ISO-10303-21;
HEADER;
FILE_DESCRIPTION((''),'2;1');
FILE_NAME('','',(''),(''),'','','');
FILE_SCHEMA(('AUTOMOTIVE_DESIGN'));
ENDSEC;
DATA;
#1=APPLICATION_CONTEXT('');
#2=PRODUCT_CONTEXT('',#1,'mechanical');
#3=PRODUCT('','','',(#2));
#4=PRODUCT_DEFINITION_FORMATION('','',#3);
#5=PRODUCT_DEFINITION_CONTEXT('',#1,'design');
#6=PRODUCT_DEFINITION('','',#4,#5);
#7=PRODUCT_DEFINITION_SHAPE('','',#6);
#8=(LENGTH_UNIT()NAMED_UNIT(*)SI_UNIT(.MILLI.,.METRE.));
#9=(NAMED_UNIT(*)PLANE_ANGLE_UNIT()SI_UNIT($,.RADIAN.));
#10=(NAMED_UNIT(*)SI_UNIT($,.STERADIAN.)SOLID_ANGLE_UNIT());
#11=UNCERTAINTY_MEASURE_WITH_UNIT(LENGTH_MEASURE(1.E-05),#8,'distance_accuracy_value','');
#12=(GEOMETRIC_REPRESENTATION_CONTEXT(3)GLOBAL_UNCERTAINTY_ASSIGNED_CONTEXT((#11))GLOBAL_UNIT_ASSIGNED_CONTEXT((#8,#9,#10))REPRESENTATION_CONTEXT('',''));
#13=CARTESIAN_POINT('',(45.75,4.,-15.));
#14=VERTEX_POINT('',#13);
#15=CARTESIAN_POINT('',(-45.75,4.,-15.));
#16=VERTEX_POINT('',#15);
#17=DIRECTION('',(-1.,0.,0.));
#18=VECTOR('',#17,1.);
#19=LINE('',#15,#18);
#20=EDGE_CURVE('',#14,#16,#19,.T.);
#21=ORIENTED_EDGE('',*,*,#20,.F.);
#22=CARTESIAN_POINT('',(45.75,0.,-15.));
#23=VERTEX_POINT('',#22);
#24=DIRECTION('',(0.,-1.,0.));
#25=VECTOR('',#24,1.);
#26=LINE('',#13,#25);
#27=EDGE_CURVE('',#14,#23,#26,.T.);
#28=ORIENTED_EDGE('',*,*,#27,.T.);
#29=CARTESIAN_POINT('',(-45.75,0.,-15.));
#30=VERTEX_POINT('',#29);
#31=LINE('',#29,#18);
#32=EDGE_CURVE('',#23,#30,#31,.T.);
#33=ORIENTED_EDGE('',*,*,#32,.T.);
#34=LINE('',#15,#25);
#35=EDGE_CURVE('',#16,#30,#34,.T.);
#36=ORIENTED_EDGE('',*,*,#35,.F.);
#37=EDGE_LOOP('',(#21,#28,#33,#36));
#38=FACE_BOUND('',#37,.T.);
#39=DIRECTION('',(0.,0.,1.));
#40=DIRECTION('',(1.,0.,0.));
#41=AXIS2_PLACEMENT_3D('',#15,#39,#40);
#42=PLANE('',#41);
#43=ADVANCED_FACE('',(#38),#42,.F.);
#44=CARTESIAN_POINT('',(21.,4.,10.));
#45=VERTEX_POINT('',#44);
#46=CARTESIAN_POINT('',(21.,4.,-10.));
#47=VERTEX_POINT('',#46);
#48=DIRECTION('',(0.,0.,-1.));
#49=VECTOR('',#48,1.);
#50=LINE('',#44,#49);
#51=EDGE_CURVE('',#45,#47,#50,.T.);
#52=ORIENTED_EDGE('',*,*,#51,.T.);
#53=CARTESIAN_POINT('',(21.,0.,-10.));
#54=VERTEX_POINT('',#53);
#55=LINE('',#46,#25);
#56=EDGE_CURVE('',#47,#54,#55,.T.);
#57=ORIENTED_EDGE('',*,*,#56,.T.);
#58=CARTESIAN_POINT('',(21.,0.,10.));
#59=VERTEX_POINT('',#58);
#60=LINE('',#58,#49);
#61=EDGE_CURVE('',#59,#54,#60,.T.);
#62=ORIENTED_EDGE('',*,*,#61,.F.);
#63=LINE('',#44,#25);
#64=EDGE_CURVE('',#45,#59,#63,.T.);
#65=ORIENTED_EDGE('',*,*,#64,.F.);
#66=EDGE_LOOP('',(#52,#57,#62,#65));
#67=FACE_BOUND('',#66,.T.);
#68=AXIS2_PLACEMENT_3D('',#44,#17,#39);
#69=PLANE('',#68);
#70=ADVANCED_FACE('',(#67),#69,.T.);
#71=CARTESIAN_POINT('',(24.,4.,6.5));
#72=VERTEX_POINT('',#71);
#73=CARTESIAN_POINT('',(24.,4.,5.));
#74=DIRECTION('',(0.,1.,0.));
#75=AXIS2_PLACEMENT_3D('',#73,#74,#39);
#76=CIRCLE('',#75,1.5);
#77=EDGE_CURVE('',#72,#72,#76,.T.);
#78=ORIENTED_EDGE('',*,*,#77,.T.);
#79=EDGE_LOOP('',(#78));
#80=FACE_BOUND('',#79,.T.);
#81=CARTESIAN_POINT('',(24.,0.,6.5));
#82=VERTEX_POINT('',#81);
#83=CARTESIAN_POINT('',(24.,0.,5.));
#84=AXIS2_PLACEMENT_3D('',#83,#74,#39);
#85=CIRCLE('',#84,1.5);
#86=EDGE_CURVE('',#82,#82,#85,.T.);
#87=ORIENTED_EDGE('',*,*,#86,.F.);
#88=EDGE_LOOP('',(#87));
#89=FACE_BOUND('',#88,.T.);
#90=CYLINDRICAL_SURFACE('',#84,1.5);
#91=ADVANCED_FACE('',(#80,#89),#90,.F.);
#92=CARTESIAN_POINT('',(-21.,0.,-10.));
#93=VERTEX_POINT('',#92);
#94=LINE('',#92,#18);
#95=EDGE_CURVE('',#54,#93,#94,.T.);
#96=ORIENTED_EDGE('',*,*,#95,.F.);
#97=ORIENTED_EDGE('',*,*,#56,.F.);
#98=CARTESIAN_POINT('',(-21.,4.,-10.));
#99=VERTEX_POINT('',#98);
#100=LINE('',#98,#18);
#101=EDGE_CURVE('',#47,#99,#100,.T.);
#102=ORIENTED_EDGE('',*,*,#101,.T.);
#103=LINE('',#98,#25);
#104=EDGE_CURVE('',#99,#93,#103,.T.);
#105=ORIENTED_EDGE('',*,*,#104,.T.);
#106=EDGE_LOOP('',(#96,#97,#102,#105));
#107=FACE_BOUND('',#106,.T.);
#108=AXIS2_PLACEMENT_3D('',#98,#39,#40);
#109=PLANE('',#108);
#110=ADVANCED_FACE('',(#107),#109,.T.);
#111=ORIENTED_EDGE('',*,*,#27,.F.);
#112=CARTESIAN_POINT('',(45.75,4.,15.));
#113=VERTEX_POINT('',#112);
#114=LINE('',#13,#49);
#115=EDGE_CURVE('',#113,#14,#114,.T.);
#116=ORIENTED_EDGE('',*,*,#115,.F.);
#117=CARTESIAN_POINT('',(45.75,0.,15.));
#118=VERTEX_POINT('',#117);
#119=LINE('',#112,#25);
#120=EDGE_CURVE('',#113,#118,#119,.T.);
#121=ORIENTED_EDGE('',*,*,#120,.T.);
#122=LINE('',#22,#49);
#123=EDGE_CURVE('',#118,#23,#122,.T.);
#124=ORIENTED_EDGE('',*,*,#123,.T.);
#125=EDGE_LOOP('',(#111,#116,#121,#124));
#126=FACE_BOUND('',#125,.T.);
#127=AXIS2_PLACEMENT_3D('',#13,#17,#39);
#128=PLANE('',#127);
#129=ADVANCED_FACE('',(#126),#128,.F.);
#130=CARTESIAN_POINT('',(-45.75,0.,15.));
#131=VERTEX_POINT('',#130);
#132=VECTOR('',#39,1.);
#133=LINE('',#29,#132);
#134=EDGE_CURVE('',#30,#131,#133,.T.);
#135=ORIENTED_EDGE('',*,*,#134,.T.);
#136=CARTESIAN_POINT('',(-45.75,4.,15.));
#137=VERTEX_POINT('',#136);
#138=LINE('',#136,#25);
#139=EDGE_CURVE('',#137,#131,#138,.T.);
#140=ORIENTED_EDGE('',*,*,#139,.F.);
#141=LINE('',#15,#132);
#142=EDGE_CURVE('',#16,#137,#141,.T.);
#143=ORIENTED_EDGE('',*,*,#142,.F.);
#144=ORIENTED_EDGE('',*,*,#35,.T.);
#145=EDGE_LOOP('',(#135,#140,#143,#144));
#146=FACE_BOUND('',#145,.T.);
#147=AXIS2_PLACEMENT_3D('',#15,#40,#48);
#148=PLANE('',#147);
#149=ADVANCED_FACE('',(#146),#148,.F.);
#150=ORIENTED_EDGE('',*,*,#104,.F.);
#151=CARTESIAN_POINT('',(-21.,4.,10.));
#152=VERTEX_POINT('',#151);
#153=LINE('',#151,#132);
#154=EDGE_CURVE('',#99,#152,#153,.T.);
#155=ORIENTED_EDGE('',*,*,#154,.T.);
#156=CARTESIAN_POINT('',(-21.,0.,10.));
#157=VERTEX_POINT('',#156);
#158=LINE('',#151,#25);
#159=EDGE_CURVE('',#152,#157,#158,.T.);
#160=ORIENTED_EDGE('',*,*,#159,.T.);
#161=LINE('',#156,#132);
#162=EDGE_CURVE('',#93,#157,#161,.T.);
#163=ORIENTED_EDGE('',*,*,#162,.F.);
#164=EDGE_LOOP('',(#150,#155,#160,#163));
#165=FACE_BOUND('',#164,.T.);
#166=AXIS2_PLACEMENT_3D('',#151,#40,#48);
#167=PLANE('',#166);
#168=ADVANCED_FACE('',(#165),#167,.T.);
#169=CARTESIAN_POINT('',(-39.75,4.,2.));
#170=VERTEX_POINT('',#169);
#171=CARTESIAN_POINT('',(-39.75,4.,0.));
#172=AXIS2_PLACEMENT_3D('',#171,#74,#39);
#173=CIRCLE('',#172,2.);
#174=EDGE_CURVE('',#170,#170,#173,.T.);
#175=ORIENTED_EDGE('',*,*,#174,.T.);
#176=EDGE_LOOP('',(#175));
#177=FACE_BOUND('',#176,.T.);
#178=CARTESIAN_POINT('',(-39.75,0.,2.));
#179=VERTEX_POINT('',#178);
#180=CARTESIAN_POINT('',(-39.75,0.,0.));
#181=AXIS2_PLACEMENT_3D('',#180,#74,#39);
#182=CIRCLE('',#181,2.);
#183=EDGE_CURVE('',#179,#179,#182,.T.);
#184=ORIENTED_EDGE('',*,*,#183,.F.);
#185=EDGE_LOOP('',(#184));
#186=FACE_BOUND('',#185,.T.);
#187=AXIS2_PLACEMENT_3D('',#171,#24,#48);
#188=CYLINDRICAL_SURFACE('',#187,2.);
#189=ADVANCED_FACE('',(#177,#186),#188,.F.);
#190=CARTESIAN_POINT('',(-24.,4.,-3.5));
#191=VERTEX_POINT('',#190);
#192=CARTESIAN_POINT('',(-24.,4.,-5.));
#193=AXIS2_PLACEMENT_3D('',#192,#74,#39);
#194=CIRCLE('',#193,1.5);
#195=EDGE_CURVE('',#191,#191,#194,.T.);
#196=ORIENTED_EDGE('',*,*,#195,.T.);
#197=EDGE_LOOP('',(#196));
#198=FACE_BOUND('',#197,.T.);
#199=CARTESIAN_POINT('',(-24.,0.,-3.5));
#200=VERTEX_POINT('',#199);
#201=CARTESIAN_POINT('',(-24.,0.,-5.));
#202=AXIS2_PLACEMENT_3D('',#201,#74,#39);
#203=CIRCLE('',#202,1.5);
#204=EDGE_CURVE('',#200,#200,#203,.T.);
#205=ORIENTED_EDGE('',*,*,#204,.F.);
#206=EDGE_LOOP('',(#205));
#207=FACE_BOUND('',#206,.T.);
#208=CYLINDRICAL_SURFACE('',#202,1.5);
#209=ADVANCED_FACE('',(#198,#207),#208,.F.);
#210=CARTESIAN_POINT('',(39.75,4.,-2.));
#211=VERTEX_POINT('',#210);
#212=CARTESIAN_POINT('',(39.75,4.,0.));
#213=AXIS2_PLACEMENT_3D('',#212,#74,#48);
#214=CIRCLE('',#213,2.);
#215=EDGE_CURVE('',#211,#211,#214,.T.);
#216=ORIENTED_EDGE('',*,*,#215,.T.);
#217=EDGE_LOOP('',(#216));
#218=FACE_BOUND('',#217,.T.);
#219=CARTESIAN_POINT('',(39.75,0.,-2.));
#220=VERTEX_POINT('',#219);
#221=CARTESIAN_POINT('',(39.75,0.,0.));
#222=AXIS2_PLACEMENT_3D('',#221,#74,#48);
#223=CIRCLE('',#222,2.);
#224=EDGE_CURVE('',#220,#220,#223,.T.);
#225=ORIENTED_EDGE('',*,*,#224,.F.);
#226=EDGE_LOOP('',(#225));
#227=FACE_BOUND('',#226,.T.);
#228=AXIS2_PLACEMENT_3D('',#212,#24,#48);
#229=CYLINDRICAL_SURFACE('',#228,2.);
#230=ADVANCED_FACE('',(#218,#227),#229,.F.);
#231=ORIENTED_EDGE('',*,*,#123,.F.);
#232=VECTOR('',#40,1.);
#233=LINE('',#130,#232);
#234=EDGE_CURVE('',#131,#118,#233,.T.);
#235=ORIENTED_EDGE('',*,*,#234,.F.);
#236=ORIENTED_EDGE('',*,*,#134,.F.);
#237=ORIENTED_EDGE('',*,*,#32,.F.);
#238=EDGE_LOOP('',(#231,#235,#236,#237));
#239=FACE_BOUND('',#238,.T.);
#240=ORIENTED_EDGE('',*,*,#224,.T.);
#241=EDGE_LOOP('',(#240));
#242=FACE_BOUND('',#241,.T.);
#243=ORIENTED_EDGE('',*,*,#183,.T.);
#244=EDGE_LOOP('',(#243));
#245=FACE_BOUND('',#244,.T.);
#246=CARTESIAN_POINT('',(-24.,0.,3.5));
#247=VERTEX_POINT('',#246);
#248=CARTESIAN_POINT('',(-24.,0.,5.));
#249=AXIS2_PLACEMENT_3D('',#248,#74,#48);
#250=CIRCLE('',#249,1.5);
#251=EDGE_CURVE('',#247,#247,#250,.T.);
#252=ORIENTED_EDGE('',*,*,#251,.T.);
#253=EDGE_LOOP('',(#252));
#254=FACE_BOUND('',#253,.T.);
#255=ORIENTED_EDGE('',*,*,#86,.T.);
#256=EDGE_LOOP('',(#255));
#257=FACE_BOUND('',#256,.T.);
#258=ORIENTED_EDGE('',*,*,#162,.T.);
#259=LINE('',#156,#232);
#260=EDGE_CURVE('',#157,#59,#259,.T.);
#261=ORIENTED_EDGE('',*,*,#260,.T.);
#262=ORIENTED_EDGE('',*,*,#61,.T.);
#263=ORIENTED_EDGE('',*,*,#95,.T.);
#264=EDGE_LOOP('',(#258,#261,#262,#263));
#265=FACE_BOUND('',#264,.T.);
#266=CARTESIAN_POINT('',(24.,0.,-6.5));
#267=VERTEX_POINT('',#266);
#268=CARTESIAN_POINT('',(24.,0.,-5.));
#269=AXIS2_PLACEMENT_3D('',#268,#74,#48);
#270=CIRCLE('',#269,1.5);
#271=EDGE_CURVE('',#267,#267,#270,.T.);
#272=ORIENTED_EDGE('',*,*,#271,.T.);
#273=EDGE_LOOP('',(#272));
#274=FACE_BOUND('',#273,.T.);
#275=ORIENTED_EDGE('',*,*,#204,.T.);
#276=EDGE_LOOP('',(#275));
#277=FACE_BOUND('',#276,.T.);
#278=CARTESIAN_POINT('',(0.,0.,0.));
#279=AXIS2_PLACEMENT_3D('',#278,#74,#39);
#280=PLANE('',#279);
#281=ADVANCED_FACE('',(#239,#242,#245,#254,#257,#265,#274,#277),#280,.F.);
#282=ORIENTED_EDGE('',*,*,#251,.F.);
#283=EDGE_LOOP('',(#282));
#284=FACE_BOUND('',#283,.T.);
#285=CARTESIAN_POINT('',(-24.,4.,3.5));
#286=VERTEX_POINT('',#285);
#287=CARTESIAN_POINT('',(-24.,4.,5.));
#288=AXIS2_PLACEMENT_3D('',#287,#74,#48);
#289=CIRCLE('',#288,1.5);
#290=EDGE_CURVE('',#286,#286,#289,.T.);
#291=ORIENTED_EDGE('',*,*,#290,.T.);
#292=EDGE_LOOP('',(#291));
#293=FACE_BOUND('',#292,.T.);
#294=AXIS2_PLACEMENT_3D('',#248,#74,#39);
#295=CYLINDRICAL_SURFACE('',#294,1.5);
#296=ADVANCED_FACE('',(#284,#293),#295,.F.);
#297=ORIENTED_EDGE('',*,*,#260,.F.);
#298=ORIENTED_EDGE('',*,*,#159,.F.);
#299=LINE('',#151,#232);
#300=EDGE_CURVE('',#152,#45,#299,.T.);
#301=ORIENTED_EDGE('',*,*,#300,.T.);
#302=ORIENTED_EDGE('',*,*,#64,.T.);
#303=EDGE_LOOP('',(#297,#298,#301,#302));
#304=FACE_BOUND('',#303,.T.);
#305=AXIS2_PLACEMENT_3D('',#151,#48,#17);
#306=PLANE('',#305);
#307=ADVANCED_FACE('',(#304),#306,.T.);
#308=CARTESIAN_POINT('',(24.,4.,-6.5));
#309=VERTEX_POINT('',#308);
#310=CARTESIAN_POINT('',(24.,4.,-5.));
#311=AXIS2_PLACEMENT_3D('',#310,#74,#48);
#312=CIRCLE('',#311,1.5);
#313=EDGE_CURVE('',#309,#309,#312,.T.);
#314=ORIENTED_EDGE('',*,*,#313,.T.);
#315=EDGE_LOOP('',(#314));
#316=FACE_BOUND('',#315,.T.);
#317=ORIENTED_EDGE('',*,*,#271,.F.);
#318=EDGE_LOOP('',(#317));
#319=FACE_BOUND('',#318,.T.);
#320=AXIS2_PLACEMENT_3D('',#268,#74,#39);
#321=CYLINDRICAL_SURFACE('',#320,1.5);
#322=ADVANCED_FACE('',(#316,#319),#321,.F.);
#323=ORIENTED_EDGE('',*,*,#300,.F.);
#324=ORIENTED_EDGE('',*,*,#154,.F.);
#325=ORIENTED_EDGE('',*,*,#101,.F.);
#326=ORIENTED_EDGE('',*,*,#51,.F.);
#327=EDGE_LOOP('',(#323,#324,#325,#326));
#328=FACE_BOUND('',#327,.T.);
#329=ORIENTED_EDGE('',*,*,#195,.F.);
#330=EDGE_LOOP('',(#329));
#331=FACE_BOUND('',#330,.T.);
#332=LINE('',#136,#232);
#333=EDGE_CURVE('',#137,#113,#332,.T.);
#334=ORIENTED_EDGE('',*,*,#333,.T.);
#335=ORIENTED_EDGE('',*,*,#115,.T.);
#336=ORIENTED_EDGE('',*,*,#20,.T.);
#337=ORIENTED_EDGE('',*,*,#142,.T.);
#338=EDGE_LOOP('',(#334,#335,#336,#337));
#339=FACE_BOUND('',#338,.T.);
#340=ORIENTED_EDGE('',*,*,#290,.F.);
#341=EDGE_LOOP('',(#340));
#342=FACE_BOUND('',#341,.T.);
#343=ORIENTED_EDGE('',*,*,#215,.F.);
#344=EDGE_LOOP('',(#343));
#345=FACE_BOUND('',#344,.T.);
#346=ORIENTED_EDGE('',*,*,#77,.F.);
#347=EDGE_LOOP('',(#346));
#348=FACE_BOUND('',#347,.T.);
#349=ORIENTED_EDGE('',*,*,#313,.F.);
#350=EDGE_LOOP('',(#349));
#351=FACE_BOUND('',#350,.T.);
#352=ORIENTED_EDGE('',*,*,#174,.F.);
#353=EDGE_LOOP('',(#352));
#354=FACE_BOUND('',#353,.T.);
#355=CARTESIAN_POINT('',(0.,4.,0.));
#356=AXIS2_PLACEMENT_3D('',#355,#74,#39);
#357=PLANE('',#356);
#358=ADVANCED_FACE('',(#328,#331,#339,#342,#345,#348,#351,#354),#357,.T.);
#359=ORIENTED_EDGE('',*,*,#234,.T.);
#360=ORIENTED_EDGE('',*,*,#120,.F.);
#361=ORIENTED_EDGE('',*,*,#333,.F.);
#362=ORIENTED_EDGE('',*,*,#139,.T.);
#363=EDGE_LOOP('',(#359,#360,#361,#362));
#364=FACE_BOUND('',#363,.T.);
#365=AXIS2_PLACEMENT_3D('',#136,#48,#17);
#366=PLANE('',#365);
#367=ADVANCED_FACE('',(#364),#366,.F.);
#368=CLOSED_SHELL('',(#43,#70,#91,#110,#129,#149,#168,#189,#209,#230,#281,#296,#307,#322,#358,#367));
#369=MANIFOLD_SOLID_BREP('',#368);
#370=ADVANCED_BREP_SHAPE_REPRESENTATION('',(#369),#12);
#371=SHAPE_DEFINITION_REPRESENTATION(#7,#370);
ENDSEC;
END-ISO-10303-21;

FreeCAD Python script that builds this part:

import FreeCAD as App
import Part
import Sketcher
Q = App.Units.Quantity


def add_polygon(sketch, points):
    """Adds a closed chain of lines whose ends are joined by coincident constraints."""
    first, n = sketch.GeometryCount, len(points)
    for a, b in zip(points, points[1:] + points[:1]):
        sketch.addGeometry(Part.LineSegment(App.Vector(*a, 0), App.Vector(*b, 0)), False)
    for i in range(n):
        sketch.addConstraint(Sketcher.Constraint("Coincident", first + i, 2, first + (i + 1) % n, 1))

doc = App.newDocument("Part")
body = doc.addObject("PartDesign::Body", "Body")

# Sketch on XZ plane
sketch1 = body.newObject("Sketcher::SketchObject", "Sketch")
sketch1.AttachmentSupport = (doc.getObject("XZ_Plane"), [""])
sketch1.MapMode = "FlatFace"
add_polygon(sketch1, [(-45.8, -15), (-45.8, 15), (45.8, 15), (45.8, -15)])  # lines 0-3
sketch1.addGeometry(Part.Circle(App.Vector(-39.8, 0, 0), App.Vector(0, 0, 1), 2), False)  # 4
add_polygon(sketch1, [(21, 10), (-21, 10), (-21, -10), (21, -10)])  # lines 5-8
sketch1.addGeometry(Part.Circle(App.Vector(39.8, 0, 0), App.Vector(0, 0, 1), 2), False)  # 9
sketch1.addConstraint([
    Sketcher.Constraint("Vertical", 0),
    Sketcher.Constraint("Horizontal", 1),
    Sketcher.Constraint("Vertical", 2),
    Sketcher.Constraint("Horizontal", 3),
    Sketcher.Constraint("Horizontal", 5),
    Sketcher.Constraint("Vertical", 6),
    Sketcher.Constraint("Horizontal", 7),
    Sketcher.Constraint("Vertical", 8),
    Sketcher.Constraint("Equal", 4, 9),
    Sketcher.Constraint("Symmetric", 4, 3, 9, 3, -1, 1),
    Sketcher.Constraint("Symmetric", 0, 2, 2, 2, -1, 1),
    Sketcher.Constraint("Symmetric", 5, 2, 7, 2, -1, 1),
    Sketcher.Constraint("PointOnObject", 4, 3, -1),
    Sketcher.Constraint("Diameter", 4, Q("4 mm")),
    Sketcher.Constraint("DistanceX", 5, 2, 5, 1, Q("42 mm")),
    Sketcher.Constraint("DistanceY", 0, 1, 0, 2, Q("30 mm")),
    Sketcher.Constraint("DistanceY", 6, 2, 6, 1, Q("20 mm")),
    Sketcher.Constraint("DistanceX", 1, 1, 1, 2, Q("91.5 mm")),
    Sketcher.Constraint("DistanceX", 0, 2, 4, 3, Q("6 mm")),
])
pad1 = body.newObject("PartDesign::Pad", "Pad")
pad1.Profile = sketch1
pad1.Length = 4
pad1.Reversed = True

# Sketch on XZ plane
sketch2 = body.newObject("Sketcher::SketchObject", "Sketch001")
sketch2.AttachmentSupport = (doc.getObject("XZ_Plane"), [""])
sketch2.MapMode = "FlatFace"
sketch2.AttachmentOffset = App.Placement(App.Vector(0, 0, -4), App.Rotation())
sketch2.addGeometry([
    Part.Circle(App.Vector(-24, -5, 0), App.Vector(0, 0, 1), 1.5),
    Part.Circle(App.Vector(-24, 5, 0), App.Vector(0, 0, 1), 1.5),
    Part.Circle(App.Vector(24, 5, 0), App.Vector(0, 0, 1), 1.5),
    Part.Circle(App.Vector(24, -5, 0), App.Vector(0, 0, 1), 1.5),
], False)
sketch2.addConstraint([
    Sketcher.Constraint("Equal", 0, 1),
    Sketcher.Constraint("Equal", 1, 2),
    Sketcher.Constraint("Equal", 2, 3),
    Sketcher.Constraint("Symmetric", 0, 3, 2, 3, -1, 1),
    Sketcher.Constraint("Symmetric", 1, 3, 3, 3, -1, 1),
    Sketcher.Constraint("Symmetric", 1, 3, 2, 3, -2),
    Sketcher.Constraint("Diameter", 0, Q("3 mm")),
    Sketcher.Constraint("DistanceX", 0, 3, -1, 1, Q("24 mm")),
    Sketcher.Constraint("DistanceY", 0, 3, -1, 1, Q("5 mm")),
])
pocket1 = body.newObject("PartDesign::Pocket", "Pocket")
pocket1.Profile = sketch2
pocket1.Type = "ThroughAll"
pocket1.Reversed = True

doc.recompute()
